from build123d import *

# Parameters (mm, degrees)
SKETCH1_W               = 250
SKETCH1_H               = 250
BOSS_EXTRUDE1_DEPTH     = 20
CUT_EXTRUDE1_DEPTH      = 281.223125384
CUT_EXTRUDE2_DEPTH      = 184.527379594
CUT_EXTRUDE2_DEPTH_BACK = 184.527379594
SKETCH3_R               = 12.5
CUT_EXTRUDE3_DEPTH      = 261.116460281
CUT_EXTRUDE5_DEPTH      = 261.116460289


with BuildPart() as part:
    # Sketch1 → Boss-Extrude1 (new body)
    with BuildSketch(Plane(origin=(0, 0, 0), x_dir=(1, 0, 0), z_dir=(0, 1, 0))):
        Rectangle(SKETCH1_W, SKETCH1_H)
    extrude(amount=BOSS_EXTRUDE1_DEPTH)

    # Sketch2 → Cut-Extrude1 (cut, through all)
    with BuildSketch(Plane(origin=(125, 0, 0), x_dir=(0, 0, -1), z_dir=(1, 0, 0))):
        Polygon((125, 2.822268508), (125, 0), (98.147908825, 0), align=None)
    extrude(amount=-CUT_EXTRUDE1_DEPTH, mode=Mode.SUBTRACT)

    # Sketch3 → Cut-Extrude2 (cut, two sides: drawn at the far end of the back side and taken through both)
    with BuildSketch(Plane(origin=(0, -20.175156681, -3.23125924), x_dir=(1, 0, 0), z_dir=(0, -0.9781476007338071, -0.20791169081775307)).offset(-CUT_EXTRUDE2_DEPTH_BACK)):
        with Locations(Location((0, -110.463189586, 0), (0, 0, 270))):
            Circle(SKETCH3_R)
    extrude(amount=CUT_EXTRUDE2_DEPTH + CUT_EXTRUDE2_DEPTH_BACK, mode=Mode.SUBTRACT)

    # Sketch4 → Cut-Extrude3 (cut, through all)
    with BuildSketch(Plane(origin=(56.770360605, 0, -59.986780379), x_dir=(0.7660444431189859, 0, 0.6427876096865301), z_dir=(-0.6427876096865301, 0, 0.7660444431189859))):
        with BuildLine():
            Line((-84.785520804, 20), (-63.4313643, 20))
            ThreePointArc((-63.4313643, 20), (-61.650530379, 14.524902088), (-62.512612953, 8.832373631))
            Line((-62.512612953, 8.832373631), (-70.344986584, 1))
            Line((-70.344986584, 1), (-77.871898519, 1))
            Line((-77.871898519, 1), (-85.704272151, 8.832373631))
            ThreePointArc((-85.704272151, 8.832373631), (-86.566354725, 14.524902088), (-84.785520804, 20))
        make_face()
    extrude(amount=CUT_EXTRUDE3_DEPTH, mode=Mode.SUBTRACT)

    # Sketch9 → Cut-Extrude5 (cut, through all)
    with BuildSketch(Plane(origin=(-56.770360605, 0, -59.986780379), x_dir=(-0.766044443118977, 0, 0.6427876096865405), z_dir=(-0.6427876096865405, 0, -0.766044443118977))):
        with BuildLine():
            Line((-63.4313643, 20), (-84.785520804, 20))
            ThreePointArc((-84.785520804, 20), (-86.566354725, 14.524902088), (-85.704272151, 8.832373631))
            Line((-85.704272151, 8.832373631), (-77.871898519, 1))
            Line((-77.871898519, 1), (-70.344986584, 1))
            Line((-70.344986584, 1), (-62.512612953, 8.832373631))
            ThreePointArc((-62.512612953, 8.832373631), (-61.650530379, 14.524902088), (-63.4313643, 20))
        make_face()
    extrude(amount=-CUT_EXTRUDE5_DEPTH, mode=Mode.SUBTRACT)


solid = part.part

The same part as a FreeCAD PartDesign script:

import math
import FreeCAD as App
import Part
import Sketcher

V = App.Vector
Q = App.Units.Quantity


def add_polygon(sketch, points):
    """Adds a closed chain of lines whose ends are joined by coincident constraints."""
    first, n = sketch.GeometryCount, len(points)
    for a, b in zip(points, points[1:] + points[:1]):
        sketch.addGeometry(Part.LineSegment(App.Vector(*a, 0), App.Vector(*b, 0)), False)
    for i in range(n):
        sketch.addConstraint(Sketcher.Constraint("Coincident", first + i, 2, first + (i + 1) % n, 1))

doc = App.newDocument("Part")
body = doc.addObject("PartDesign::Body", "Body")

# Sketch on XZ plane
sketch1 = body.newObject("Sketcher::SketchObject", "Sketch")
sketch1.AttachmentSupport = (doc.getObject("XZ_Plane"), [""])
sketch1.MapMode = "FlatFace"
add_polygon(sketch1, [(-125, -125), (-125, 125), (125, 125), (125, -125)])  # lines 0-3
sketch1.addConstraint([
    Sketcher.Constraint("Vertical", 0),
    Sketcher.Constraint("Horizontal", 1),
    Sketcher.Constraint("Vertical", 2),
    Sketcher.Constraint("Horizontal", 3),
    Sketcher.Constraint("Symmetric", 0, 2, 2, 2, -1, 1),
    Sketcher.Constraint("Equal", 3, 0),
    Sketcher.Constraint("DistanceX", 1, 1, 1, 2, 250.0),
])
pad1 = body.newObject("PartDesign::Pad", "Pad")
pad1.Profile = sketch1
pad1.Length = 20
pad1.Reversed = True

# Sketch on YZ plane
sketch2 = body.newObject("Sketcher::SketchObject", "Sketch001")
sketch2.AttachmentSupport = (doc.getObject("YZ_Plane"), [""])
sketch2.MapMode = "FlatFace"
sketch2.AttachmentOffset = App.Placement(V(0, 0, 125), App.Rotation())
add_polygon(sketch2, [(0, -125), (2.8, -125), (0, -98.1)])  # lines 0-2
sketch2.addConstraint([
    Sketcher.Constraint("Horizontal", 0),
    Sketcher.Constraint("Vertical", 2),
    Sketcher.Constraint("PointOnObject", 1, 2, -2),
    Sketcher.Constraint("Angle", 1, Q("96 deg")),
    Sketcher.Constraint("Distance", 1, 27.0),
    Sketcher.Constraint("DistanceY", 0, 2, -1, 1, 125.0),
])
pocket1 = body.newObject("PartDesign::Pocket", "Pocket")
pocket1.Profile = sketch2
pocket1.Type = "ThroughAll"

# Sketch on an angled plane
sketch3 = body.newObject("Sketcher::SketchObject", "Sketch002")
sketch3.Placement = App.Placement(V(0, -20.175157, -3.231259), App.Rotation(V(1, 0, 0), V(0, -0.207911691, 0.978147601), V(0, -0.978147601, -0.207911691), "ZXY"))
sketch3.addGeometry(Part.Circle(V(0, -110, 0), V(0, 0, 1), 12), False)
sketch3.addConstraint([
    Sketcher.Constraint("PointOnObject", 0, 3, -2),
    Sketcher.Constraint("Diameter", 0, 25.0),
    Sketcher.Constraint("DistanceY", 0, 3, -1, 1, 110.46319),
])
pocket2 = body.newObject("PartDesign::Pocket", "Pocket001")
pocket2.Profile = sketch3
pocket2.Type = "ThroughAll"
pocket2.Midplane = True

# Sketch on an angled plane
sketch4 = body.newObject("Sketcher::SketchObject", "Sketch003")
sketch4.Placement = App.Placement(V(56.770361, 0, -59.98678), App.Rotation(V(0.766044443, 0, 0.64278761), V(0, 1, 0), V(-0.64278761, 0, 0.766044443), "ZXY"))
sketch4.addGeometry([
    Part.LineSegment(V(-63, 20, 0), V(-85, 20, 0)),  # 0
    Part.ArcOfCircle(Part.Circle(V(-74, 14, 0), V(0, 0, 1), 13), math.radians(149), math.radians(202)),  # 1
    Part.LineSegment(V(-86, 9, 0), V(-78, 1, 0)),  # 2
    Part.LineSegment(V(-78, 1, 0), V(-70, 1, 0)),  # 3
    Part.LineSegment(V(-70, 1, 0), V(-63, 9, 0)),  # 4
    Part.ArcOfCircle(Part.Circle(V(-74, 14, 0), V(0, 0, 1), 13), math.radians(-22), math.radians(31)),  # 5
], False)
sketch4.addConstraint([
    Sketcher.Constraint("Coincident", 0, 2, 1, 1),
    Sketcher.Constraint("Coincident", 1, 2, 2, 1),
    Sketcher.Constraint("Coincident", 2, 2, 3, 1),
    Sketcher.Constraint("Coincident", 3, 2, 4, 1),
    Sketcher.Constraint("Coincident", 4, 2, 5, 1),
    Sketcher.Constraint("Coincident", 5, 2, 0, 1),
    Sketcher.Constraint("Horizontal", 0),
    Sketcher.Constraint("Horizontal", 3),
    Sketcher.Constraint("Coincident", 5, 3, 1, 3),
    Sketcher.Constraint("Equal", 1, 5),
    Sketcher.Constraint("Perpendicular", 2, 4),
    Sketcher.Constraint("Horizontal", 1, 2, 4, 2),
    Sketcher.Constraint("Equal", 2, 4),
    Sketcher.Constraint("Radius", 1, 12.5),
    Sketcher.Constraint("DistanceY", -1, 1, 0, 2, 20.0),
    Sketcher.Constraint("DistanceY", -1, 1, 2, 2, 1.0),
    Sketcher.Constraint("DistanceY", -1, 1, 1, 3, 13.5),
    Sketcher.Constraint("DistanceX", 3, 1, 3, 2, 7.526912),
    Sketcher.Constraint("DistanceX", 2, 2, -1, 1, 77.871899),
])
pocket3 = body.newObject("PartDesign::Pocket", "Pocket002")
pocket3.Profile = sketch4
pocket3.Type = "ThroughAll"
pocket3.Reversed = True

# Sketch on an angled plane
sketch5 = body.newObject("Sketcher::SketchObject", "Sketch004")
sketch5.Placement = App.Placement(V(-56.770361, 0, -59.98678), App.Rotation(V(-0.766044443, 0, 0.64278761), V(0, 1, 0), V(-0.64278761, 0, -0.766044443), "ZXY"))
sketch5.addGeometry([
    Part.LineSegment(V(-63, 20, 0), V(-85, 20, 0)),  # 0
    Part.ArcOfCircle(Part.Circle(V(-74, 14, 0), V(0, 0, 1), 13), math.radians(149), math.radians(202)),  # 1
    Part.LineSegment(V(-86, 9, 0), V(-78, 1, 0)),  # 2
    Part.LineSegment(V(-78, 1, 0), V(-70, 1, 0)),  # 3
    Part.LineSegment(V(-70, 1, 0), V(-63, 9, 0)),  # 4
    Part.ArcOfCircle(Part.Circle(V(-74, 14, 0), V(0, 0, 1), 13), math.radians(-22), math.radians(31)),  # 5
], False)
sketch5.addConstraint([
    Sketcher.Constraint("Coincident", 0, 2, 1, 1),
    Sketcher.Constraint("Coincident", 1, 2, 2, 1),
    Sketcher.Constraint("Coincident", 2, 2, 3, 1),
    Sketcher.Constraint("Coincident", 3, 2, 4, 1),
    Sketcher.Constraint("Coincident", 4, 2, 5, 1),
    Sketcher.Constraint("Coincident", 5, 2, 0, 1),
    Sketcher.Constraint("Horizontal", 0),
    Sketcher.Constraint("Horizontal", 3),
    Sketcher.Constraint("Coincident", 5, 3, 1, 3),
    Sketcher.Constraint("Equal", 1, 5),
    Sketcher.Constraint("Perpendicular", 2, 4),
    Sketcher.Constraint("Horizontal", 1, 2, 4, 2),
    Sketcher.Constraint("Equal", 2, 4),
    Sketcher.Constraint("Radius", 1, 12.5),
    Sketcher.Constraint("DistanceY", -1, 1, 0, 2, 20.0),
    Sketcher.Constraint("DistanceY", -1, 1, 2, 2, 1.0),
    Sketcher.Constraint("DistanceY", -1, 1, 1, 3, 13.5),
    Sketcher.Constraint("DistanceX", 3, 1, 3, 2, 7.526912),
    Sketcher.Constraint("DistanceX", 2, 2, -1, 1, 77.871899),
])
pocket4 = body.newObject("PartDesign::Pocket", "Pocket003")
pocket4.Profile = sketch5
pocket4.Type = "ThroughAll"

doc.recompute()
